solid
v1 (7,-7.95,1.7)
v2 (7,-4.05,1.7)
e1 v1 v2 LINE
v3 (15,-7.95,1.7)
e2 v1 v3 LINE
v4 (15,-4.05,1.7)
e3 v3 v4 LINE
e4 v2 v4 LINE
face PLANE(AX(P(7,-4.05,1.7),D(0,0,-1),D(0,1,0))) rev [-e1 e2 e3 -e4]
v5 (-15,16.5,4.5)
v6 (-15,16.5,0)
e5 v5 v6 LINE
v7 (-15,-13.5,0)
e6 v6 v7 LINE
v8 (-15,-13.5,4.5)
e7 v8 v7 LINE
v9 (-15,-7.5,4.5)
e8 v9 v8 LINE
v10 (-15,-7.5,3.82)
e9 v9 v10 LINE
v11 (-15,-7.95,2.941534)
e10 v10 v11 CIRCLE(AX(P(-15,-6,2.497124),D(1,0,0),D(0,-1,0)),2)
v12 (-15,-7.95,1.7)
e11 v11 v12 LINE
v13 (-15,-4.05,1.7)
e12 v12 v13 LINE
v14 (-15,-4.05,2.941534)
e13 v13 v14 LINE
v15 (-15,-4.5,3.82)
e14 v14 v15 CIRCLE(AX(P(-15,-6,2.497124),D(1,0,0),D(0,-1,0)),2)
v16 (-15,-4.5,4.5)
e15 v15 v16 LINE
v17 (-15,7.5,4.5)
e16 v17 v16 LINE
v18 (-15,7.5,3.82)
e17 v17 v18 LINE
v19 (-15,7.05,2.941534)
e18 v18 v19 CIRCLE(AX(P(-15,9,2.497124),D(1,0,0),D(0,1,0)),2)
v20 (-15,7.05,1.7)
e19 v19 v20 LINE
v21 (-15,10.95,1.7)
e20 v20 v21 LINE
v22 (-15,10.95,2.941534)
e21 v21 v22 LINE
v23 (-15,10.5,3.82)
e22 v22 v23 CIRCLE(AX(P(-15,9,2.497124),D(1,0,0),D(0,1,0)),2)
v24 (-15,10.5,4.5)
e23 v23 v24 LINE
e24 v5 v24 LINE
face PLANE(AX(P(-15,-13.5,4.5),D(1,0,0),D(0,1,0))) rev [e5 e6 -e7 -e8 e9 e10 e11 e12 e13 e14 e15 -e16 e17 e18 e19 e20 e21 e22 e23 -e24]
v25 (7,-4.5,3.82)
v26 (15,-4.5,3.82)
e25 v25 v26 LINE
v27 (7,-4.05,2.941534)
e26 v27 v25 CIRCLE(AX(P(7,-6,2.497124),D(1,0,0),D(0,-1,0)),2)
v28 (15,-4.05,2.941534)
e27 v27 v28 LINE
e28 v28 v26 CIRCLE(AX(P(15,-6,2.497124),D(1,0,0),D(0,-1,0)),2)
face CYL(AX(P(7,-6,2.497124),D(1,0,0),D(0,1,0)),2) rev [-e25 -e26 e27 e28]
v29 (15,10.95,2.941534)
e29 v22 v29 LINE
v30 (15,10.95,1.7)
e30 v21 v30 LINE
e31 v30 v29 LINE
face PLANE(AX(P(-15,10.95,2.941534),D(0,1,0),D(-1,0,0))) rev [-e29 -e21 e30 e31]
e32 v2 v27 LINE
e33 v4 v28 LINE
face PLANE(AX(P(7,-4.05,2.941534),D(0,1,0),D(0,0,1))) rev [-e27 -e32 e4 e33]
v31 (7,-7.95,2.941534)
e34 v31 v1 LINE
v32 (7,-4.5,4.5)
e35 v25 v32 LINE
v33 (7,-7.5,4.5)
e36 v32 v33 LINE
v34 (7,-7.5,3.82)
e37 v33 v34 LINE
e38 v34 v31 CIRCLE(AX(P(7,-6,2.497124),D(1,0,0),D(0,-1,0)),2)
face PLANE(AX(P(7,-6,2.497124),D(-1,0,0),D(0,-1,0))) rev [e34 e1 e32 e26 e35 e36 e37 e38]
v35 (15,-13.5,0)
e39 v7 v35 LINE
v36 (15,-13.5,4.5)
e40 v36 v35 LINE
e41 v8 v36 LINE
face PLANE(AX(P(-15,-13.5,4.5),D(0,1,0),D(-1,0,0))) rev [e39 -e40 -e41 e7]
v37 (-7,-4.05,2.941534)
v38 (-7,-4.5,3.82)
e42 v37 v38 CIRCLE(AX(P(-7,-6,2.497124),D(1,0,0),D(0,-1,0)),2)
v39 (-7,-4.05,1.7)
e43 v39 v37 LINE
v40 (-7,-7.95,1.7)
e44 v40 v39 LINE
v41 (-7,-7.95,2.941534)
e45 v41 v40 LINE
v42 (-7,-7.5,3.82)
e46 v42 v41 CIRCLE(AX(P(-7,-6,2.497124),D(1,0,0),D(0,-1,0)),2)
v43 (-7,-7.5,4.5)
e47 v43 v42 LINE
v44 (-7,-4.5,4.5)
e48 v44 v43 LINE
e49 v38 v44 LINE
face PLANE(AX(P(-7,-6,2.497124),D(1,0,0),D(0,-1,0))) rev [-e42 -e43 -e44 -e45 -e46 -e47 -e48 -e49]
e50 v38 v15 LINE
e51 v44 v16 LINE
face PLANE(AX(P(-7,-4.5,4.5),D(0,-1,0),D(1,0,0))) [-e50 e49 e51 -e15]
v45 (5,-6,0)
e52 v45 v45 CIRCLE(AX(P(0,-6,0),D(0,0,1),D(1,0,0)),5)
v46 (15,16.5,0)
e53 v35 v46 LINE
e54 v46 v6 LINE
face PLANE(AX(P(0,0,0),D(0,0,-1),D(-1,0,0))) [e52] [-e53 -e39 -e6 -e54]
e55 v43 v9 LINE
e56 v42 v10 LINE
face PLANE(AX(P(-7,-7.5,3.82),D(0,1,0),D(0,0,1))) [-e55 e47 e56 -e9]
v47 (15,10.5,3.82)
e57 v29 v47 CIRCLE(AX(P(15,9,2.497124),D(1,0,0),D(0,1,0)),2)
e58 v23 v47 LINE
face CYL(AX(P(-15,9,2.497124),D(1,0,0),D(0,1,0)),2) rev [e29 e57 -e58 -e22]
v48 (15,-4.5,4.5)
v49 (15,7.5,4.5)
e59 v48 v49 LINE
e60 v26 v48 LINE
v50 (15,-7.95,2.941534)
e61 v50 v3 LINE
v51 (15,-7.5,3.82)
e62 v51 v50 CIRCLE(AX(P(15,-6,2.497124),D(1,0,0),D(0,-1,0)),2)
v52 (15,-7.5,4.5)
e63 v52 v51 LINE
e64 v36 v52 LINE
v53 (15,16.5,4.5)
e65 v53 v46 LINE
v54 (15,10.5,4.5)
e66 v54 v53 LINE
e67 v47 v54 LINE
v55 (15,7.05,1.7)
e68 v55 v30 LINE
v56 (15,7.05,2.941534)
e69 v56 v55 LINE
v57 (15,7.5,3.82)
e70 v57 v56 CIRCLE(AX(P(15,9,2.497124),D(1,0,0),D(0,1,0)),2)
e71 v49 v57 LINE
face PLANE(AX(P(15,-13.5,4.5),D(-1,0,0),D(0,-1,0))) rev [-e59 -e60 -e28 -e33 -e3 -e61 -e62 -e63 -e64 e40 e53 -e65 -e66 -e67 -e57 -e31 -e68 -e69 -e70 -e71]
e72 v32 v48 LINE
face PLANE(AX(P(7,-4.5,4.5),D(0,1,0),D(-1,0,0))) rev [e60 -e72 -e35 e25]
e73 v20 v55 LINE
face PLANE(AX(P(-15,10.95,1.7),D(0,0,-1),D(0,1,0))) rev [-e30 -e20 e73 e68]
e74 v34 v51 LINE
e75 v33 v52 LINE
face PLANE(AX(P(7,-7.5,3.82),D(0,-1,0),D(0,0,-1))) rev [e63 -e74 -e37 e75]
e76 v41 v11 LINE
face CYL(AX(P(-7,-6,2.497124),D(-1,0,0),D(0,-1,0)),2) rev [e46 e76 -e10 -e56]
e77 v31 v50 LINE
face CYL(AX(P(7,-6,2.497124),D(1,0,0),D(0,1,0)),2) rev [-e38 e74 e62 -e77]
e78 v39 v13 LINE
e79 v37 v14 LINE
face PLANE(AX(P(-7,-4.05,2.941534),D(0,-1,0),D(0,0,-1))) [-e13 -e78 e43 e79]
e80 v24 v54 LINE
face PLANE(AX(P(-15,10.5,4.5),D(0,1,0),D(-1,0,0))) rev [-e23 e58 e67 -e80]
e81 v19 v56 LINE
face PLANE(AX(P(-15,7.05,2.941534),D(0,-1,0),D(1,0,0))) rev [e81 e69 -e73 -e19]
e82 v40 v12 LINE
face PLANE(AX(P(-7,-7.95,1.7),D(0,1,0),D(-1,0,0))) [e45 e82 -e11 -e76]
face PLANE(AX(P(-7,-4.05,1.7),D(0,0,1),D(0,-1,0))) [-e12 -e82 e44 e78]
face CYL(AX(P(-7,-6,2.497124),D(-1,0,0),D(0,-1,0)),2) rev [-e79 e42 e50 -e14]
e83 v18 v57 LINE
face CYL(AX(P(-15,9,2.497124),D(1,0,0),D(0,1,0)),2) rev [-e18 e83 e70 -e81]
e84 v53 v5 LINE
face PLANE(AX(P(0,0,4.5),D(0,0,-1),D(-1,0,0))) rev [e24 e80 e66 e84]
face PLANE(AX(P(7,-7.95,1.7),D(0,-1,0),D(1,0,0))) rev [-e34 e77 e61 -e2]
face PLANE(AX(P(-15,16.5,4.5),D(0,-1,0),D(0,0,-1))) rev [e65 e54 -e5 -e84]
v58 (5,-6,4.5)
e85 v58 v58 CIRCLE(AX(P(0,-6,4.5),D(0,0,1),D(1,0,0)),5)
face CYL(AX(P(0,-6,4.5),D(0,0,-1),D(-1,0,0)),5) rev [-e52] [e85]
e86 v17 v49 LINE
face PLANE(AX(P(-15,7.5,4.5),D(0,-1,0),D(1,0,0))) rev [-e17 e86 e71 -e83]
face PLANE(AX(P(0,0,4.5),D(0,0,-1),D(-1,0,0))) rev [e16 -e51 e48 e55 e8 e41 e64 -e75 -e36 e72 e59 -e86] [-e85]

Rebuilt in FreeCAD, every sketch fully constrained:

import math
import FreeCAD as App
import Part
import Sketcher

V = App.Vector
Q = App.Units.Quantity


def add_polygon(sketch, points):
    """Adds a closed chain of lines whose ends are joined by coincident constraints."""
    first, n = sketch.GeometryCount, len(points)
    for a, b in zip(points, points[1:] + points[:1]):
        sketch.addGeometry(Part.LineSegment(App.Vector(*a, 0), App.Vector(*b, 0)), False)
    for i in range(n):
        sketch.addConstraint(Sketcher.Constraint("Coincident", first + i, 2, first + (i + 1) % n, 1))

doc = App.newDocument("Part")
body = doc.addObject("PartDesign::Body", "Body")

# Sketch on XY plane
sketch1 = body.newObject("Sketcher::SketchObject", "Sketch")
sketch1.AttachmentSupport = (doc.getObject("XY_Plane"), [""])
sketch1.MapMode = "FlatFace"
add_polygon(sketch1, [(-15, 16.5), (-15, -13.5), (15, -13.5), (15, 16.5)])  # lines 0-3
sketch1.addGeometry(Part.Circle(V(0, -6, 0), V(0, 0, 1), 5), False)  # 4
sketch1.addConstraint(Sketcher.Constraint("Vertical", 0))
sketch1.addConstraint(Sketcher.Constraint("Horizontal", 1))
sketch1.addConstraint(Sketcher.Constraint("Vertical", 2))
sketch1.addConstraint(Sketcher.Constraint("Horizontal", 3))
sketch1.addConstraint(Sketcher.Constraint("PointOnObject", 4, 3, -2))
sketch1.addConstraint(Sketcher.Constraint("Equal", 3, 0))
sketch1.addConstraint(Sketcher.Constraint("Diameter", 4, Q("10 mm")))
sketch1.addConstraint(Sketcher.Constraint("DistanceX", 1, 1, 1, 2, Q("30 mm")))
sketch1.addConstraint(Sketcher.Constraint("DistanceY", 4, 3, -1, 1, Q("6 mm")))
sketch1.addConstraint(Sketcher.Constraint("DistanceX", 0, 2, -1, 1, Q("15 mm")))
sketch1.addConstraint(Sketcher.Constraint("DistanceY", 0, 2, -1, 1, Q("13.5 mm")))
pad1 = body.newObject("PartDesign::Pad", "Pad")
pad1.Profile = sketch1
pad1.Length = 4.5

# Sketch on YZ plane
sketch2 = body.newObject("Sketcher::SketchObject", "Sketch001")
sketch2.AttachmentSupport = (doc.getObject("YZ_Plane"), [""])
sketch2.MapMode = "FlatFace"
sketch2.AttachmentOffset = App.Placement(V(0, 0, 15), App.Rotation())
sketch2.addGeometry(Part.LineSegment(V(7.5, 4.5, 0), V(7.5, 3.82, 0)), False)
sketch2.addGeometry(Part.ArcOfCircle(Part.Circle(V(9, 2.497124, 0), V(0, 0, 1), 2), math.radians(138.590378), math.radians(167.161432)), False)
sketch2.addGeometry(Part.LineSegment(V(7.05, 2.941534, 0), V(7.05, 1.7, 0)), False)
sketch2.addGeometry(Part.LineSegment(V(7.05, 1.7, 0), V(10.95, 1.7, 0)), False)
sketch2.addGeometry(Part.LineSegment(V(10.95, 1.7, 0), V(10.95, 2.941534, 0)), False)
sketch2.addGeometry(Part.ArcOfCircle(Part.Circle(V(9, 2.497124, 0), V(0, 0, 1), 2), math.radians(12.838568), math.radians(41.409622)), False)
sketch2.addGeometry(Part.LineSegment(V(10.5, 3.82, 0), V(10.5, 4.5, 0)), False)
sketch2.addGeometry(Part.LineSegment(V(10.5, 4.5, 0), V(7.5, 4.5, 0)), False)
sketch2.addConstraint(Sketcher.Constraint("Coincident", 0, 2, 1, 1))
sketch2.addConstraint(Sketcher.Constraint("Coincident", 1, 2, 2, 1))
sketch2.addConstraint(Sketcher.Constraint("Coincident", 2, 2, 3, 1))
sketch2.addConstraint(Sketcher.Constraint("Coincident", 3, 2, 4, 1))
sketch2.addConstraint(Sketcher.Constraint("Coincident", 4, 2, 5, 1))
sketch2.addConstraint(Sketcher.Constraint("Coincident", 5, 2, 6, 1))
sketch2.addConstraint(Sketcher.Constraint("Coincident", 6, 2, 7, 1))
sketch2.addConstraint(Sketcher.Constraint("Coincident", 7, 2, 0, 1))
sketch2.addConstraint(Sketcher.Constraint("Vertical", 0))
sketch2.addConstraint(Sketcher.Constraint("Vertical", 2))
sketch2.addConstraint(Sketcher.Constraint("Horizontal", 3))
sketch2.addConstraint(Sketcher.Constraint("Vertical", 4))
sketch2.addConstraint(Sketcher.Constraint("Vertical", 6))
sketch2.addConstraint(Sketcher.Constraint("Horizontal", 7))
sketch2.addConstraint(Sketcher.Constraint("Coincident", 5, 3, 1, 3))
sketch2.addConstraint(Sketcher.Constraint("Equal", 1, 5))
sketch2.addConstraint(Sketcher.Constraint("Horizontal", 1, 2, 4, 2))
sketch2.addConstraint(Sketcher.Constraint("Horizontal", 0, 2, 5, 2))
sketch2.addConstraint(Sketcher.Constraint("Radius", 1, Q("2 mm")))
sketch2.addConstraint(Sketcher.Constraint("DistanceX", 7, 2, 7, 1, Q("3 mm")))
sketch2.addConstraint(Sketcher.Constraint("DistanceX", 3, 1, 3, 2, Q("3.9 mm")))
sketch2.addConstraint(Sketcher.Constraint("DistanceX", -1, 1, 1, 3, Q("9 mm")))
sketch2.addConstraint(Sketcher.Constraint("DistanceY", 0, 2, 0, 1, Q("0.68 mm")))
sketch2.addConstraint(Sketcher.Constraint("DistanceY", -1, 1, 2, 2, Q("1.7 mm")))
sketch2.addConstraint(Sketcher.Constraint("DistanceY", -1, 1, 6, 2, Q("4.5 mm")))
pocket1 = body.newObject("PartDesign::Pocket", "Pocket")
pocket1.Profile = sketch2
pocket1.Type = "ThroughAll"

# Sketch on YZ plane
sketch3 = body.newObject("Sketcher::SketchObject", "Sketch002")
sketch3.AttachmentSupport = (doc.getObject("YZ_Plane"), [""])
sketch3.MapMode = "FlatFace"
sketch3.AttachmentOffset = App.Placement(V(0, 0, 15), App.Rotation())
sketch3.addGeometry(Part.LineSegment(V(-7.95, 1.7, 0), V(-4.05, 1.7, 0)), False)
sketch3.addGeometry(Part.LineSegment(V(-4.05, 1.7, 0), V(-4.05, 2.941534, 0)), False)
sketch3.addGeometry(Part.ArcOfCircle(Part.Circle(V(-6, 2.497124, 0), V(0, 0, 1), 2), math.radians(12.838568), math.radians(41.409622)), False)
sketch3.addGeometry(Part.LineSegment(V(-4.5, 3.82, 0), V(-4.5, 4.5, 0)), False)
sketch3.addGeometry(Part.LineSegment(V(-4.5, 4.5, 0), V(-7.5, 4.5, 0)), False)
sketch3.addGeometry(Part.LineSegment(V(-7.5, 4.5, 0), V(-7.5, 3.82, 0)), False)
sketch3.addGeometry(Part.ArcOfCircle(Part.Circle(V(-6, 2.497124, 0), V(0, 0, 1), 2), math.radians(138.590378), math.radians(167.161432)), False)
sketch3.addGeometry(Part.LineSegment(V(-7.95, 2.941534, 0), V(-7.95, 1.7, 0)), False)
sketch3.addConstraint(Sketcher.Constraint("Coincident", 0, 2, 1, 1))
sketch3.addConstraint(Sketcher.Constraint("Coincident", 1, 2, 2, 1))
sketch3.addConstraint(Sketcher.Constraint("Coincident", 2, 2, 3, 1))
sketch3.addConstraint(Sketcher.Constraint("Coincident", 3, 2, 4, 1))
sketch3.addConstraint(Sketcher.Constraint("Coincident", 4, 2, 5, 1))
sketch3.addConstraint(Sketcher.Constraint("Coincident", 5, 2, 6, 1))
sketch3.addConstraint(Sketcher.Constraint("Coincident", 6, 2, 7, 1))
sketch3.addConstraint(Sketcher.Constraint("Coincident", 7, 2, 0, 1))
sketch3.addConstraint(Sketcher.Constraint("Horizontal", 0))
sketch3.addConstraint(Sketcher.Constraint("Vertical", 1))
sketch3.addConstraint(Sketcher.Constraint("Vertical", 3))
sketch3.addConstraint(Sketcher.Constraint("Horizontal", 4))
sketch3.addConstraint(Sketcher.Constraint("Vertical", 5))
sketch3.addConstraint(Sketcher.Constraint("Vertical", 7))
sketch3.addConstraint(Sketcher.Constraint("Coincident", 6, 3, 2, 3))
sketch3.addConstraint(Sketcher.Constraint("Equal", 2, 6))
sketch3.addConstraint(Sketcher.Constraint("Horizontal", 2, 2, 5, 2))
sketch3.addConstraint(Sketcher.Constraint("Horizontal", 1, 2, 6, 2))
sketch3.addConstraint(Sketcher.Constraint("Radius", 2, Q("2 mm")))
sketch3.addConstraint(Sketcher.Constraint("DistanceX", 4, 2, 4, 1, Q("3 mm")))
sketch3.addConstraint(Sketcher.Constraint("DistanceX", 0, 1, 0, 2, Q("3.9 mm")))
sketch3.addConstraint(Sketcher.Constraint("DistanceX", 2, 3, -1, 1, Q("6 mm")))
sketch3.addConstraint(Sketcher.Constraint("DistanceY", 3, 1, 3, 2, Q("0.68 mm")))
sketch3.addConstraint(Sketcher.Constraint("DistanceY", -1, 1, 0, 2, Q("1.7 mm")))
sketch3.addConstraint(Sketcher.Constraint("DistanceY", -1, 1, 3, 2, Q("4.5 mm")))
pocket2 = body.newObject("PartDesign::Pocket", "Pocket001")
pocket2.Profile = sketch3
pocket2.Length = 8
doc.recompute()

mirrored = body.newObject("PartDesign::Mirrored", "Mirrored")
mirrored.Originals = [pocket2]
mirrored.MirrorPlane = (doc.getObject("YZ_Plane"), [""])
body.Tip = mirrored

doc.recompute()
